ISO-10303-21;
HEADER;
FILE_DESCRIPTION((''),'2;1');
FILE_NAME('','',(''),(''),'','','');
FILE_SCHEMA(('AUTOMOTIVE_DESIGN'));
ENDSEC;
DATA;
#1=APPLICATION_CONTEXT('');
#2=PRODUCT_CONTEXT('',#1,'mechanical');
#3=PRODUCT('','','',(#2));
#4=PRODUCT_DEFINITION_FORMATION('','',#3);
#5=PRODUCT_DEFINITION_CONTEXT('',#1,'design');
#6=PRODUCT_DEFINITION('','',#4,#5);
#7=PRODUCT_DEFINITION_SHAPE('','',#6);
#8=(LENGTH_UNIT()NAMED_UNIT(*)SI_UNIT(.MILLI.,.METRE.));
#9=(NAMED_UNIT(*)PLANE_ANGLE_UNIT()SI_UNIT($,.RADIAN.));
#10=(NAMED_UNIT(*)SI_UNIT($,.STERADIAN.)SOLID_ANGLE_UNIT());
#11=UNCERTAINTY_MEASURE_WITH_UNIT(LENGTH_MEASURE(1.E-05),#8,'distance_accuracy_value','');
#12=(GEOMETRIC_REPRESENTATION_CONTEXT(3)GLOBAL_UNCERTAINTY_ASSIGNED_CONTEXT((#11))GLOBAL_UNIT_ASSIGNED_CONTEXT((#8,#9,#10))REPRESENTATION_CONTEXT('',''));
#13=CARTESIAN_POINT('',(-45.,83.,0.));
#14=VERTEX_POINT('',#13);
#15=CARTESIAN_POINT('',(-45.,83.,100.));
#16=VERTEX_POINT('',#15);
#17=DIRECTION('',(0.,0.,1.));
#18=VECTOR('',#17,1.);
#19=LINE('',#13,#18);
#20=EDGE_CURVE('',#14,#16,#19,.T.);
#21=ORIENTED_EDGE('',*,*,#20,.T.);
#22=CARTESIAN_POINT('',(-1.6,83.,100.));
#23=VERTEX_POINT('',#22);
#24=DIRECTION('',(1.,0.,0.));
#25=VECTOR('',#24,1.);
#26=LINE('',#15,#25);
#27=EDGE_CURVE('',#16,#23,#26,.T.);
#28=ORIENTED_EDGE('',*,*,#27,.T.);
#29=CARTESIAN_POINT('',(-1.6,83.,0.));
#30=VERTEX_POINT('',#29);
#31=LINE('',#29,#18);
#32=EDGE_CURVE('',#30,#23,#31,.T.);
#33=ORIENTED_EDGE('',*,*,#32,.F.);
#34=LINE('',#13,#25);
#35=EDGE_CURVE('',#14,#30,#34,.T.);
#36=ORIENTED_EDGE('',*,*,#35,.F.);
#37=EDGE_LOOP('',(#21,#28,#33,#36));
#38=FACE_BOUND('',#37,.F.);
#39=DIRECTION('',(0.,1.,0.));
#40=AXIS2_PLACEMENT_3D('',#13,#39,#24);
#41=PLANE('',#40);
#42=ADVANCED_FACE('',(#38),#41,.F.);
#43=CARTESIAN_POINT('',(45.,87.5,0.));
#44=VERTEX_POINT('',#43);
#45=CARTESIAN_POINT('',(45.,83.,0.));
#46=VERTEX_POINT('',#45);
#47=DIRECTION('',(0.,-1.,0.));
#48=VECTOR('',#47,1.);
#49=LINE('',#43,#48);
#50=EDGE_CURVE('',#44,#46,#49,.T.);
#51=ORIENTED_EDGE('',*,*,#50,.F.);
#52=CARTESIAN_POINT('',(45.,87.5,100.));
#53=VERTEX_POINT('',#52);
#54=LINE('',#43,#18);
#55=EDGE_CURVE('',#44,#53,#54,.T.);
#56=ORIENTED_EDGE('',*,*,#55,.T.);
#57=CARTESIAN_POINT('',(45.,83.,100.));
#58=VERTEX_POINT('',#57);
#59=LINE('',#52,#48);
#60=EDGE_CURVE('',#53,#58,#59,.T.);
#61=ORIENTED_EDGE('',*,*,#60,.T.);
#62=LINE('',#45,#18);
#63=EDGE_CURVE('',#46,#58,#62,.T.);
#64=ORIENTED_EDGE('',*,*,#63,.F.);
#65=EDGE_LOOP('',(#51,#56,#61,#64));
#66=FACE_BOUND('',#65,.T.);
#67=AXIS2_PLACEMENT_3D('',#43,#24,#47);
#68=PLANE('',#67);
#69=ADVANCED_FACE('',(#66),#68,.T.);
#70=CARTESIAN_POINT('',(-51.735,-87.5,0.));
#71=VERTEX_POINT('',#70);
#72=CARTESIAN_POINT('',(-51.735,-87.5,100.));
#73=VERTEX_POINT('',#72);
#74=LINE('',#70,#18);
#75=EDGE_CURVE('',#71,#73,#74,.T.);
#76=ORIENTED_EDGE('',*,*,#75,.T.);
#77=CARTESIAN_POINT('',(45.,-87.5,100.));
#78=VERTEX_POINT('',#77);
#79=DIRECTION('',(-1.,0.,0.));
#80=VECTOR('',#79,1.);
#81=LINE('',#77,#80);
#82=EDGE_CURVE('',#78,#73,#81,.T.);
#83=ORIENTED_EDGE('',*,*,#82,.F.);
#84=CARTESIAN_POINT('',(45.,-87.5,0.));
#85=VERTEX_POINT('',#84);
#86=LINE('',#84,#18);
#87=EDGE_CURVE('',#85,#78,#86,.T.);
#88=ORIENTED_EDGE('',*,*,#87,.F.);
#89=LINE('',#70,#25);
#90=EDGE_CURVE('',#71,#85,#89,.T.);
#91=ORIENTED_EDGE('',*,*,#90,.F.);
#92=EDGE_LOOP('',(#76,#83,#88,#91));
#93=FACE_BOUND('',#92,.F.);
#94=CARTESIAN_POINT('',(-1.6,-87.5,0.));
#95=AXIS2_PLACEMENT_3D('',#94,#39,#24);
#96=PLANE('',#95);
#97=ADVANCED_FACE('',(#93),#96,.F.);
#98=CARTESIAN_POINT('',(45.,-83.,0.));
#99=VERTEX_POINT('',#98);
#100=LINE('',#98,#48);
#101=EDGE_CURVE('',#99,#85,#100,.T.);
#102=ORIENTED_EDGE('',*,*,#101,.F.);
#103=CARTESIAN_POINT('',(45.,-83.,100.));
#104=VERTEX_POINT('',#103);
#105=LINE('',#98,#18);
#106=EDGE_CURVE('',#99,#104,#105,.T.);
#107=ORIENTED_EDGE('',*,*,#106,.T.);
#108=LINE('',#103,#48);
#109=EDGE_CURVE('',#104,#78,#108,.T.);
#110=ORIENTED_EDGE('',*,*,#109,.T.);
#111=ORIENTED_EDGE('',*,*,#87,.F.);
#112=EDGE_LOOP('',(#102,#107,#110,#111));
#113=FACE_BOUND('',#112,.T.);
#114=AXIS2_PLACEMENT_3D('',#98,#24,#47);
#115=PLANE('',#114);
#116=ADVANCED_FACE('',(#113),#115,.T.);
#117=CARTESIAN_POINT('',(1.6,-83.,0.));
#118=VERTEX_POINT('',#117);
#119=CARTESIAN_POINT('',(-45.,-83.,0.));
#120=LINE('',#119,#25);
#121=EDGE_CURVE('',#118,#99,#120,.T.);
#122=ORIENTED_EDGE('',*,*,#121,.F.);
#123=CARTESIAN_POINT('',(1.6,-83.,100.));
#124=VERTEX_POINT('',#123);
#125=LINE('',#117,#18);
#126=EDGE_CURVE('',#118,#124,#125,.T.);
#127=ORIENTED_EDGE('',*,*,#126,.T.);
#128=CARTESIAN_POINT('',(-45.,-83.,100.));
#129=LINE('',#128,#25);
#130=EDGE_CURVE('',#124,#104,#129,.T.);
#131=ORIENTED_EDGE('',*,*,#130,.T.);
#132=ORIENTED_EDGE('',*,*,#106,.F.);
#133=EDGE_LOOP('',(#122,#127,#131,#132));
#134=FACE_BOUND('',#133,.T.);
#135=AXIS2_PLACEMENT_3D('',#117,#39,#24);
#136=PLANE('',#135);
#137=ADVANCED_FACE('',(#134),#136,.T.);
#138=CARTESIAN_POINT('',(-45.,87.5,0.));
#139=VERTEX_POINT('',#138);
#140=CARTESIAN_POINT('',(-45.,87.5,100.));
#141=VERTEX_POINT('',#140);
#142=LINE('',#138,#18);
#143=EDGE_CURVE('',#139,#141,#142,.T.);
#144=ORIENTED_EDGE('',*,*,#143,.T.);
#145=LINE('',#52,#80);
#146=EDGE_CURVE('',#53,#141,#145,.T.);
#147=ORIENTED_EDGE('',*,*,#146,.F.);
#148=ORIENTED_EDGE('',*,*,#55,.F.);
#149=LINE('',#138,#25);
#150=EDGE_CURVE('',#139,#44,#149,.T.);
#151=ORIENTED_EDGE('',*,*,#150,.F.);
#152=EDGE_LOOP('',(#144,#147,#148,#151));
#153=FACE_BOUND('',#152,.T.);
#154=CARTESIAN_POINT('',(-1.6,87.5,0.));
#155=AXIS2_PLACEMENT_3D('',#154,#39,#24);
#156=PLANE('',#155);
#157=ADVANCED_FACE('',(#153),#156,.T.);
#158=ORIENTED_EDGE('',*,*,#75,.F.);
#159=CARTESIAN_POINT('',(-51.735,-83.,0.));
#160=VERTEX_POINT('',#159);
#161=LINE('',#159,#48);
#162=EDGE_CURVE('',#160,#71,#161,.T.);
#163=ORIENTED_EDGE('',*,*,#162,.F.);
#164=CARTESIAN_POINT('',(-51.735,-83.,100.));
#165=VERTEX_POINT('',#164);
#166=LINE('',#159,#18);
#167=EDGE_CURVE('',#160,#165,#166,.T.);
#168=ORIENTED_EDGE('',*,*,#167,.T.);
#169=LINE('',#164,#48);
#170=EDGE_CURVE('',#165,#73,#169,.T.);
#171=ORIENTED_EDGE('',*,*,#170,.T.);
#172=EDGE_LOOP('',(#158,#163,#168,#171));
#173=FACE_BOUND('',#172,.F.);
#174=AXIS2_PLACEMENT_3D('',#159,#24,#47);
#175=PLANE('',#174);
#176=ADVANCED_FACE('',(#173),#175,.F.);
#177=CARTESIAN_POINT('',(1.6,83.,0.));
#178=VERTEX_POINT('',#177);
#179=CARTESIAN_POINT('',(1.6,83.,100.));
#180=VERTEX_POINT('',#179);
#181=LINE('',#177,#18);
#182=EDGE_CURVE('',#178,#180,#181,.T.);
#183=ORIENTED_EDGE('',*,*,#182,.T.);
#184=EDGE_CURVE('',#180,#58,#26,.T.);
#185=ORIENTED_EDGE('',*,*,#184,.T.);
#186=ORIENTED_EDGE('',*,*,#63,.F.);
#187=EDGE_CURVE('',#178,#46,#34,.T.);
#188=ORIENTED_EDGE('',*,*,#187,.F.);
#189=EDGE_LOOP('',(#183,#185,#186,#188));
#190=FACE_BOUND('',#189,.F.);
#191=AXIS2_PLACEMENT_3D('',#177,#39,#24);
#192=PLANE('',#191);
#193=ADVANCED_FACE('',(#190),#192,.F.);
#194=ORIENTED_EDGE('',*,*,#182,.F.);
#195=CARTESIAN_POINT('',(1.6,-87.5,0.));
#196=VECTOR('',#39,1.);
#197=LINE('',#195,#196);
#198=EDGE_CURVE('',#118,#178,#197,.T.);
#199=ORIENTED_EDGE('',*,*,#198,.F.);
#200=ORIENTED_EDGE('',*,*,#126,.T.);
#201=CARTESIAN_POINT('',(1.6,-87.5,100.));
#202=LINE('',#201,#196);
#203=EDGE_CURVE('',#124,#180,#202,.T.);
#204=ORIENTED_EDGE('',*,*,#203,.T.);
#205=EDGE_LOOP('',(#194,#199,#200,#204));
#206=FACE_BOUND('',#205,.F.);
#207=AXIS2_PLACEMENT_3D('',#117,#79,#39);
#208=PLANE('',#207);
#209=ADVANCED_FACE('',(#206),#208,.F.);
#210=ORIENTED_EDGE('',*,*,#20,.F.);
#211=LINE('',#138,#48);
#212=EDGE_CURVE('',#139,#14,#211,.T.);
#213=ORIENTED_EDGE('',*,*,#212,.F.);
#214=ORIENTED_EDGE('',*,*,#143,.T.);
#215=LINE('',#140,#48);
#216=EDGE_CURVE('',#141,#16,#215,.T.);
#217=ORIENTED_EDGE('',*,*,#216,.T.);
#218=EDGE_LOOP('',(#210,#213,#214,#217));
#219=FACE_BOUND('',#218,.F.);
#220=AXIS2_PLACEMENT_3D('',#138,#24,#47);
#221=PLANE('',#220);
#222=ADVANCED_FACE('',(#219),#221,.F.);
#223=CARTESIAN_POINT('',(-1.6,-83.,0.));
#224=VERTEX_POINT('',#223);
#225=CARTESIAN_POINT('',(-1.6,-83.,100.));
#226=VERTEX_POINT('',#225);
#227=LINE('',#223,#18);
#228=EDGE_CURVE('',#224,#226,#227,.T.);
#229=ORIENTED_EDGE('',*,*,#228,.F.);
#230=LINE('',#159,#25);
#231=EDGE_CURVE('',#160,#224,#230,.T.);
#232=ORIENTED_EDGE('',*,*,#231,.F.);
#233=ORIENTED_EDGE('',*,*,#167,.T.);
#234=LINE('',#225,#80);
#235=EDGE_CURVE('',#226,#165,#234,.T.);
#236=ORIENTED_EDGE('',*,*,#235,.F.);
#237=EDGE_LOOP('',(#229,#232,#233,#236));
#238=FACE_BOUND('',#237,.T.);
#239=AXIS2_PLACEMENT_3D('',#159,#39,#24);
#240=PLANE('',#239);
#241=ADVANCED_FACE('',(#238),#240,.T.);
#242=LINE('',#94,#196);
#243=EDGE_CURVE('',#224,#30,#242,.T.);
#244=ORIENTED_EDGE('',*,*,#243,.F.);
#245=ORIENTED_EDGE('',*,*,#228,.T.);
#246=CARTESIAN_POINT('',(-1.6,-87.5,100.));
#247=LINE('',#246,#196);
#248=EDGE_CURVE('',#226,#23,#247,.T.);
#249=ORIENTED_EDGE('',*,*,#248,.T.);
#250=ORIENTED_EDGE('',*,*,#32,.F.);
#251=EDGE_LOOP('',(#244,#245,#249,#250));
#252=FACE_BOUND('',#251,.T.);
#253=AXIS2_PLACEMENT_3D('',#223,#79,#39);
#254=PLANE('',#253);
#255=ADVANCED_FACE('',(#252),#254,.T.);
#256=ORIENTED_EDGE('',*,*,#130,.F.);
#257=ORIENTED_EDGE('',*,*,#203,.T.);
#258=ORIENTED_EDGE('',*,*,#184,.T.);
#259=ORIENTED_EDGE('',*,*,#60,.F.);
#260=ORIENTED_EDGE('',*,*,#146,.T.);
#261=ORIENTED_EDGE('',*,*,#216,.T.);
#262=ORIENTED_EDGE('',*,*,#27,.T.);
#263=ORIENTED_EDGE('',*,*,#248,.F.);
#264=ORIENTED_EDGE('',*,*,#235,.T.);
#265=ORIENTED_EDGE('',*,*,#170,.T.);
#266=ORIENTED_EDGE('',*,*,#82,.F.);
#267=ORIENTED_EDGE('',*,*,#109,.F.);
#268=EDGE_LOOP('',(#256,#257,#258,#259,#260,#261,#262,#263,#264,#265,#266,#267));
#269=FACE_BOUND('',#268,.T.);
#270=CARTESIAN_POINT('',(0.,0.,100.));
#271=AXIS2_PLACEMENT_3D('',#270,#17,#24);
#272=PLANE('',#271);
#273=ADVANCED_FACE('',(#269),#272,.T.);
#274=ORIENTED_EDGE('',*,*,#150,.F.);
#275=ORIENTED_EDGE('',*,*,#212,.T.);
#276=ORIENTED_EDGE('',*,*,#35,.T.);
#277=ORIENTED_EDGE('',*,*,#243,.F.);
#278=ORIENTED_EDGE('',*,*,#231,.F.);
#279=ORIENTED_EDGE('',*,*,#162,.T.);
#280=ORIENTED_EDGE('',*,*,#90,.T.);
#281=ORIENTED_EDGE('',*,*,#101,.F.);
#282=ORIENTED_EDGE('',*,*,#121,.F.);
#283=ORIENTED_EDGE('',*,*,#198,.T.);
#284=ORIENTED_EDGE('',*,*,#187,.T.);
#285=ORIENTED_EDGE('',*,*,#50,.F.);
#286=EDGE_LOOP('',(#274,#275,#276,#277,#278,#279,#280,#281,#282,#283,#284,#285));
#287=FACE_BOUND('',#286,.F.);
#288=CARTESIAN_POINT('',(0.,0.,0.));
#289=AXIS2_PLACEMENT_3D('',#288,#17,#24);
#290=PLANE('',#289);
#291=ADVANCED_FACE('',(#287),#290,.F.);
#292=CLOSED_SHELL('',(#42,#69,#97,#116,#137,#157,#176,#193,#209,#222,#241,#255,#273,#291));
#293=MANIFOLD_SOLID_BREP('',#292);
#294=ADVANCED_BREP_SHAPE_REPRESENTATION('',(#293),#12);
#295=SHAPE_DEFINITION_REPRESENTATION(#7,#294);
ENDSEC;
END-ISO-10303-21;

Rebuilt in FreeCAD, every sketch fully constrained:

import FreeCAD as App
import Part
import Sketcher

doc = App.newDocument("Part")
body = doc.addObject("PartDesign::Body", "Body")

# Sketch on XY plane
sketch1 = doc.addObject("Sketcher::SketchObject", "Sketch")
body.addObject(sketch1)
sketch1.AttachmentSupport = (doc.XY_Plane, [""])
sketch1.MapMode = "FlatFace"
sketch1.addGeometry(Part.LineSegment(App.Vector(45, -87.5, 0), App.Vector(45, -83, 0)), False)
sketch1.addGeometry(Part.LineSegment(App.Vector(45, -83, 0), App.Vector(1.6, -83, 0)), False)
sketch1.addGeometry(Part.LineSegment(App.Vector(1.6, -83, 0), App.Vector(1.6, 83, 0)), False)
sketch1.addGeometry(Part.LineSegment(App.Vector(1.6, 83, 0), App.Vector(45, 83, 0)), False)
sketch1.addGeometry(Part.LineSegment(App.Vector(45, 83, 0), App.Vector(45, 87.5, 0)), False)
sketch1.addGeometry(Part.LineSegment(App.Vector(45, 87.5, 0), App.Vector(-45, 87.5, 0)), False)
sketch1.addGeometry(Part.LineSegment(App.Vector(-45, 87.5, 0), App.Vector(-45, 83, 0)), False)
sketch1.addGeometry(Part.LineSegment(App.Vector(-45, 83, 0), App.Vector(-1.6, 83, 0)), False)
sketch1.addGeometry(Part.LineSegment(App.Vector(-1.6, 83, 0), App.Vector(-1.6, -83, 0)), False)
sketch1.addGeometry(Part.LineSegment(App.Vector(-1.6, -83, 0), App.Vector(-51.7, -83, 0)), False)
sketch1.addGeometry(Part.LineSegment(App.Vector(-51.7, -83, 0), App.Vector(-51.7, -87.5, 0)), False)
sketch1.addGeometry(Part.LineSegment(App.Vector(-51.7, -87.5, 0), App.Vector(45, -87.5, 0)), False)
sketch1.addConstraint(Sketcher.Constraint("Coincident", 0, 2, 1, 1))
sketch1.addConstraint(Sketcher.Constraint("Coincident", 1, 2, 2, 1))
sketch1.addConstraint(Sketcher.Constraint("Coincident", 2, 2, 3, 1))
sketch1.addConstraint(Sketcher.Constraint("Coincident", 3, 2, 4, 1))
sketch1.addConstraint(Sketcher.Constraint("Coincident", 4, 2, 5, 1))
sketch1.addConstraint(Sketcher.Constraint("Coincident", 5, 2, 6, 1))
sketch1.addConstraint(Sketcher.Constraint("Coincident", 6, 2, 7, 1))
sketch1.addConstraint(Sketcher.Constraint("Coincident", 7, 2, 8, 1))
sketch1.addConstraint(Sketcher.Constraint("Coincident", 8, 2, 9, 1))
sketch1.addConstraint(Sketcher.Constraint("Coincident", 9, 2, 10, 1))
sketch1.addConstraint(Sketcher.Constraint("Coincident", 10, 2, 11, 1))
sketch1.addConstraint(Sketcher.Constraint("Coincident", 11, 2, 0, 1))
sketch1.addConstraint(Sketcher.Constraint("Vertical", 0))
sketch1.addConstraint(Sketcher.Constraint("Horizontal", 1))
sketch1.addConstraint(Sketcher.Constraint("Vertical", 2))
sketch1.addConstraint(Sketcher.Constraint("Horizontal", 3))
sketch1.addConstraint(Sketcher.Constraint("Vertical", 4))
sketch1.addConstraint(Sketcher.Constraint("Horizontal", 5))
sketch1.addConstraint(Sketcher.Constraint("Vertical", 6))
sketch1.addConstraint(Sketcher.Constraint("Horizontal", 7))
sketch1.addConstraint(Sketcher.Constraint("Vertical", 8))
sketch1.addConstraint(Sketcher.Constraint("Horizontal", 9))
sketch1.addConstraint(Sketcher.Constraint("Vertical", 10))
sketch1.addConstraint(Sketcher.Constraint("Horizontal", 11))
sketch1.addConstraint(Sketcher.Constraint("Symmetric", 0, 2, 6, 2, -1, 1))
sketch1.addConstraint(Sketcher.Constraint("Symmetric", 2, 2, 8, 2, -1, 1))
sketch1.addConstraint(Sketcher.Constraint("Symmetric", 3, 2, 6, 2, -2))
sketch1.addConstraint(Sketcher.Constraint("Equal", 0, 4))
sketch1.addConstraint(Sketcher.Constraint("DistanceX", 5, 2, 5, 1, 90.0))
sketch1.addConstraint(Sketcher.Constraint("DistanceY", 0, 1, 0, 2, 4.5))
sketch1.addConstraint(Sketcher.Constraint("DistanceX", -1, 1, 1, 2, 1.6))
sketch1.addConstraint(Sketcher.Constraint("DistanceY", 2, 1, 2, 2, 166.0))
sketch1.addConstraint(Sketcher.Constraint("DistanceX", 9, 2, 9, 1, 50.135))
pad1 = doc.addObject("PartDesign::Pad", "Pad")
body.addObject(pad1)
pad1.Profile = sketch1
pad1.Length = 100

doc.recompute()
